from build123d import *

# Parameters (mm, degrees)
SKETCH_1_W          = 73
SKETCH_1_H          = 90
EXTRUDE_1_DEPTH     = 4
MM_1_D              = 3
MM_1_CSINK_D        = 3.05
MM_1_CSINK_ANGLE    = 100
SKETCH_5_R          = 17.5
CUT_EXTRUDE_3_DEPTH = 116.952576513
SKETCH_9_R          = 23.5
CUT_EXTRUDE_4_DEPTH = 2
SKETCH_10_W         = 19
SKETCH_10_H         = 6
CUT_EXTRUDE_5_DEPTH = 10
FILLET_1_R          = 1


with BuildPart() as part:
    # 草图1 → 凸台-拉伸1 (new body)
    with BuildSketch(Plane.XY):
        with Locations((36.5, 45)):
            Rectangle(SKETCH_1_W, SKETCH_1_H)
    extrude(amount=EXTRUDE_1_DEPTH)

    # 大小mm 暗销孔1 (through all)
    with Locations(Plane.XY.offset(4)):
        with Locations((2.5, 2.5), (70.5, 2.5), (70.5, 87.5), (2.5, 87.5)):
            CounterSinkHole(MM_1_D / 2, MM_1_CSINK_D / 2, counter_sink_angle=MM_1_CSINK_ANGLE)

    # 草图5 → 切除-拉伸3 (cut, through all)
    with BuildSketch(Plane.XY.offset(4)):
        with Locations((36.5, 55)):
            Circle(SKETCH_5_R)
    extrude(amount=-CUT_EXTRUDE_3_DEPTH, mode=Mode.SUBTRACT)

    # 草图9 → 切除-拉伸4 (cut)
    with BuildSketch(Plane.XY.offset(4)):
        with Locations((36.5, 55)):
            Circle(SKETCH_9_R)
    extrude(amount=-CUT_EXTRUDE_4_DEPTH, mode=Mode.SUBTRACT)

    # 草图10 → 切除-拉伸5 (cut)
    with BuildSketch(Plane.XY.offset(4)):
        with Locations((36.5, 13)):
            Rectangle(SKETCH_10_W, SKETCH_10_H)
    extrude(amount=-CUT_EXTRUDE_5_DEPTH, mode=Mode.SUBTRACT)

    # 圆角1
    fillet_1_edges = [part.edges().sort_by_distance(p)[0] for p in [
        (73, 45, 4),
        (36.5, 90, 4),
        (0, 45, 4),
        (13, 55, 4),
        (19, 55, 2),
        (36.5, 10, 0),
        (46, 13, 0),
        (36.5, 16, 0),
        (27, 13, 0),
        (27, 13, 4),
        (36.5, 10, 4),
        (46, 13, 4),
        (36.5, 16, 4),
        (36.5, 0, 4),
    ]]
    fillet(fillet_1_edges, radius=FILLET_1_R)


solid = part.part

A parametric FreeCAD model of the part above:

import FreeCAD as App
import Part
import Sketcher


def edges_at(feature, points):
    """Names of the edges that pass closest to the given points."""
    edges = feature.Shape.Edges
    near = lambda p: min(range(len(edges)), key=lambda i: edges[i].distToShape(Part.Vertex(*p))[0])
    return sorted({f"Edge{near(p) + 1}" for p in points})

doc = App.newDocument("Part")
body = doc.addObject("PartDesign::Body", "Body")

# Sketch on XY plane
sketch1 = body.newObject("Sketcher::SketchObject", "Sketch")
sketch1.AttachmentSupport = (doc.getObject("XY_Plane"), [""])
sketch1.MapMode = "FlatFace"
sketch1.addGeometry([
    Part.LineSegment(App.Vector(0, 90, 0), App.Vector(0, 0, 0)),
    Part.LineSegment(App.Vector(0, 0, 0), App.Vector(73, 0, 0)),
    Part.LineSegment(App.Vector(73, 0, 0), App.Vector(73, 90, 0)),
    Part.LineSegment(App.Vector(73, 90, 0), App.Vector(0, 90, 0)),
], False)
sketch1.addConstraint([
    Sketcher.Constraint("Coincident", 0, 2, 1, 1),
    Sketcher.Constraint("Coincident", 1, 2, 2, 1),
    Sketcher.Constraint("Coincident", 2, 2, 3, 1),
    Sketcher.Constraint("Coincident", 3, 2, 0, 1),
    Sketcher.Constraint("Vertical", 0),
    Sketcher.Constraint("Horizontal", 1),
    Sketcher.Constraint("Vertical", 2),
    Sketcher.Constraint("Horizontal", 3),
    Sketcher.Constraint("Coincident", 0, 2, -1, 1),
    Sketcher.Constraint("DistanceX", 1, 1, 1, 2, 73.0),
    Sketcher.Constraint("DistanceY", 0, 2, 0, 1, 90.0),
])
pad1 = body.newObject("PartDesign::Pad", "Pad")
pad1.Profile = sketch1
pad1.Length = 4

# Sketch on XY plane
sketch2 = body.newObject("Sketcher::SketchObject", "Sketch001")
sketch2.AttachmentSupport = (doc.getObject("XY_Plane"), [""])
sketch2.MapMode = "FlatFace"
sketch2.AttachmentOffset = App.Placement(App.Vector(0, 0, 4), App.Rotation())
sketch2.addGeometry([
    Part.Circle(App.Vector(2.5, 2.5, 0), App.Vector(0, 0, 1), 1.5),
    Part.Circle(App.Vector(70.5, 2.5, 0), App.Vector(0, 0, 1), 1.5),
    Part.Circle(App.Vector(70.5, 87.5, 0), App.Vector(0, 0, 1), 1.5),
    Part.Circle(App.Vector(2.5, 87.5, 0), App.Vector(0, 0, 1), 1.5),
], False)
sketch2.addConstraint([
    Sketcher.Constraint("Equal", 0, 1),
    Sketcher.Constraint("Equal", 1, 2),
    Sketcher.Constraint("Equal", 2, 3),
    Sketcher.Constraint("Horizontal", 0, 3, 1, 3),
    Sketcher.Constraint("Horizontal", 2, 3, 3, 3),
    Sketcher.Constraint("Vertical", 1, 3, 2, 3),
    Sketcher.Constraint("Vertical", 0, 3, 3, 3),
    Sketcher.Constraint("Diameter", 0, 3.0),
    Sketcher.Constraint("DistanceX", 0, 3, 1, 3, 68.0),
    Sketcher.Constraint("DistanceY", 1, 3, 2, 3, 85.0),
    Sketcher.Constraint("DistanceX", -1, 1, 0, 3, 2.5),
    Sketcher.Constraint("DistanceY", -1, 1, 0, 3, 2.5),
])
doc.recompute()
hole = body.newObject("PartDesign::Hole", "Hole")
hole.Profile = sketch2
hole.ThreadType = "None"
hole.Diameter = 3
hole.DepthType = "ThroughAll"
hole.HoleCutType = "Countersink"
hole.HoleCutDiameter = 3.05
hole.HoleCutCountersinkAngle = 100

# Sketch on XY plane
sketch3 = body.newObject("Sketcher::SketchObject", "Sketch002")
sketch3.AttachmentSupport = (doc.getObject("XY_Plane"), [""])
sketch3.MapMode = "FlatFace"
sketch3.AttachmentOffset = App.Placement(App.Vector(0, 0, 4), App.Rotation())
sketch3.addGeometry(Part.Circle(App.Vector(36.5, 55, 0), App.Vector(0, 0, 1), 17.5), False)
sketch3.addConstraint([
    Sketcher.Constraint("Diameter", 0, 35.0),
    Sketcher.Constraint("DistanceY", -1, 1, 0, 3, 55.0),
    Sketcher.Constraint("DistanceX", -1, 1, 0, 3, 36.5),
])
pocket1 = body.newObject("PartDesign::Pocket", "Pocket")
pocket1.Profile = sketch3
pocket1.Type = "ThroughAll"

# Sketch on XY plane
sketch4 = body.newObject("Sketcher::SketchObject", "Sketch003")
sketch4.AttachmentSupport = (doc.getObject("XY_Plane"), [""])
sketch4.MapMode = "FlatFace"
sketch4.AttachmentOffset = App.Placement(App.Vector(0, 0, 4), App.Rotation())
sketch4.addGeometry(Part.Circle(App.Vector(36.5, 55, 0), App.Vector(0, 0, 1), 23.5), False)
sketch4.addConstraint([
    Sketcher.Constraint("Diameter", 0, 47.0),
    Sketcher.Constraint("DistanceY", -1, 1, 0, 3, 55.0),
    Sketcher.Constraint("DistanceX", -1, 1, 0, 3, 36.5),
])
pocket2 = body.newObject("PartDesign::Pocket", "Pocket001")
pocket2.Profile = sketch4
pocket2.Length = 2

# Sketch on XY plane
sketch5 = body.newObject("Sketcher::SketchObject", "Sketch004")
sketch5.AttachmentSupport = (doc.getObject("XY_Plane"), [""])
sketch5.MapMode = "FlatFace"
sketch5.AttachmentOffset = App.Placement(App.Vector(0, 0, 4), App.Rotation())
sketch5.addGeometry([
    Part.LineSegment(App.Vector(27, 16, 0), App.Vector(27, 10, 0)),
    Part.LineSegment(App.Vector(27, 10, 0), App.Vector(46, 10, 0)),
    Part.LineSegment(App.Vector(46, 10, 0), App.Vector(46, 16, 0)),
    Part.LineSegment(App.Vector(46, 16, 0), App.Vector(27, 16, 0)),
], False)
sketch5.addConstraint([
    Sketcher.Constraint("Coincident", 0, 2, 1, 1),
    Sketcher.Constraint("Coincident", 1, 2, 2, 1),
    Sketcher.Constraint("Coincident", 2, 2, 3, 1),
    Sketcher.Constraint("Coincident", 3, 2, 0, 1),
    Sketcher.Constraint("Vertical", 0),
    Sketcher.Constraint("Horizontal", 1),
    Sketcher.Constraint("Vertical", 2),
    Sketcher.Constraint("Horizontal", 3),
    Sketcher.Constraint("DistanceX", 1, 1, 1, 2, 19.0),
    Sketcher.Constraint("DistanceY", 0, 2, 0, 1, 6.0),
    Sketcher.Constraint("DistanceX", -1, 1, 0, 2, 27.0),
    Sketcher.Constraint("DistanceY", -1, 1, 0, 2, 10.0),
])
pocket3 = body.newObject("PartDesign::Pocket", "Pocket002")
pocket3.Profile = sketch5
pocket3.Length = 10
doc.recompute()

fillet = body.newObject("PartDesign::Fillet", "Fillet")
fillet.Base = (pocket3, edges_at(pocket3, [
    (73, 45, 4),
    (36.5, 90, 4),
    (0, 45, 4),
    (13, 55, 4),
    (19, 55, 2),
    (36.5, 10, 0),
    (46, 13, 0),
    (36.5, 16, 0),
    (27, 13, 0),
    (27, 13, 4),
    (36.5, 10, 4),
    (46, 13, 4),
    (36.5, 16, 4),
    (36.5, 0, 4),
]))
fillet.Radius = 1

doc.recompute()
